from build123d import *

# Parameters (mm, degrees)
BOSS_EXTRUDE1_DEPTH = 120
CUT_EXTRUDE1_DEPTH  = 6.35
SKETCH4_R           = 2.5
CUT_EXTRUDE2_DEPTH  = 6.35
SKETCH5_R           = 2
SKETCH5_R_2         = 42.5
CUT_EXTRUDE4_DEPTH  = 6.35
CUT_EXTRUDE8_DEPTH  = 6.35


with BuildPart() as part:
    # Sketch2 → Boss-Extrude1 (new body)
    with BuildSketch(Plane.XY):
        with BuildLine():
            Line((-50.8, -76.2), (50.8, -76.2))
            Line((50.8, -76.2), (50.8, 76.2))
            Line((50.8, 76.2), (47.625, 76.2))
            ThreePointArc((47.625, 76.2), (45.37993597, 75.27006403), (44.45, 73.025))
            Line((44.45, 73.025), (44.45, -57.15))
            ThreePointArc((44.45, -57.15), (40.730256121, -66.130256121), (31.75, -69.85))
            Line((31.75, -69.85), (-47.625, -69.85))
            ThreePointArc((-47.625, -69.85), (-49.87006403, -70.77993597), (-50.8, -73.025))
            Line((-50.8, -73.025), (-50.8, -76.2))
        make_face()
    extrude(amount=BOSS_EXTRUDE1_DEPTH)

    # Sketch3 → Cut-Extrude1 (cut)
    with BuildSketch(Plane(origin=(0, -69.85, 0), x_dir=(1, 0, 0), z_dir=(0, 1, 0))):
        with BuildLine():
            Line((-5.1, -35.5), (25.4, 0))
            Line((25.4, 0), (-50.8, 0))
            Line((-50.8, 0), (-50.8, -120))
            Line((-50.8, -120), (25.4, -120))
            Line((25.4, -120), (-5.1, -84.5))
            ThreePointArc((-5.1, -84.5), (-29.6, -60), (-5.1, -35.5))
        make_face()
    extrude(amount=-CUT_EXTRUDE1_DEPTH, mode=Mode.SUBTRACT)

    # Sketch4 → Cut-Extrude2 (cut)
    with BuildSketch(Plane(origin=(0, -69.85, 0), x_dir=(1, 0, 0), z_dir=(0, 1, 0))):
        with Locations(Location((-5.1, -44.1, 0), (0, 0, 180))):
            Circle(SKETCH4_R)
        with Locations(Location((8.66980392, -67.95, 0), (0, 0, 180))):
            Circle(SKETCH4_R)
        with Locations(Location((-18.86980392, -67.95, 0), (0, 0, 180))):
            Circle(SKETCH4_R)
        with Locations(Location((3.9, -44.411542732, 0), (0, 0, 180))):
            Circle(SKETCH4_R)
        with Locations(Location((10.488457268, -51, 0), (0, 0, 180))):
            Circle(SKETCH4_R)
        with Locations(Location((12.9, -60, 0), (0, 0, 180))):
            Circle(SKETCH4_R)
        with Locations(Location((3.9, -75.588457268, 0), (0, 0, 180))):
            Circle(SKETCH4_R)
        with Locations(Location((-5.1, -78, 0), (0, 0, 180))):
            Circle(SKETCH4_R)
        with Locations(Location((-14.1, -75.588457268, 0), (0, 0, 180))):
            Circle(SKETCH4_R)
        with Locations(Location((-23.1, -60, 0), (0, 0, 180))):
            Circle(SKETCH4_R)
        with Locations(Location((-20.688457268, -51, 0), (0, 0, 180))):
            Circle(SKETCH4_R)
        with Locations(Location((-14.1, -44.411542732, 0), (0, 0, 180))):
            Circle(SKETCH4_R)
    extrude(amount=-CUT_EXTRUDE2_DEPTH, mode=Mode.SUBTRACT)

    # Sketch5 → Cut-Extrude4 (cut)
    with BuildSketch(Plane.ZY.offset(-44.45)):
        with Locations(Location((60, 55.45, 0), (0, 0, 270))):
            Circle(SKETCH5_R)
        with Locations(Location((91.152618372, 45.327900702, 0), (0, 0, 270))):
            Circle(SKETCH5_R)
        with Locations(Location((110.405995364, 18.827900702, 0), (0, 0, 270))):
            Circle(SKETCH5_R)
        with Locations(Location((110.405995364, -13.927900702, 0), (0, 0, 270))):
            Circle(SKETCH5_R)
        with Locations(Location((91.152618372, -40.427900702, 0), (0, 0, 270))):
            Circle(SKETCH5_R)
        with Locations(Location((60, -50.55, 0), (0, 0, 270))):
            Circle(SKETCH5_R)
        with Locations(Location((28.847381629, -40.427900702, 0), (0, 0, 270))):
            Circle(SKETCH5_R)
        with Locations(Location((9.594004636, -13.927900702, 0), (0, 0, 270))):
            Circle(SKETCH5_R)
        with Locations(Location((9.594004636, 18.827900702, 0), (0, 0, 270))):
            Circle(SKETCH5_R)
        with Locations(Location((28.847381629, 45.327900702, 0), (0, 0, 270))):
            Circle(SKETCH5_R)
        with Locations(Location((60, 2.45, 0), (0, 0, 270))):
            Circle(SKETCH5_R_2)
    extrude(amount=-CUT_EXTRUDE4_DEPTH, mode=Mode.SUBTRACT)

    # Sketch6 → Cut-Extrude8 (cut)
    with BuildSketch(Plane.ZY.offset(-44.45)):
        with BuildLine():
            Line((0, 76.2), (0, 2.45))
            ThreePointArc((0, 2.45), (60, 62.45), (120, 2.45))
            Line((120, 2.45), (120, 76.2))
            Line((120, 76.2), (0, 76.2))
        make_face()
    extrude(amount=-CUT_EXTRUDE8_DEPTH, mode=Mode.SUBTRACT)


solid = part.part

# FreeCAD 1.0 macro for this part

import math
import FreeCAD as App
import Part
import Sketcher
Q = App.Units.Quantity

doc = App.newDocument("Part")
body = doc.addObject("PartDesign::Body", "Body")

# Sketch on XY plane
sketch1 = doc.addObject("Sketcher::SketchObject", "Sketch")
body.addObject(sketch1)
sketch1.AttachmentSupport = (doc.XY_Plane, [""])
sketch1.MapMode = "FlatFace"
sketch1.addGeometry(Part.LineSegment(App.Vector(-50.8, -76.2, 0), App.Vector(50.8, -76.2, 0)), False)
sketch1.addGeometry(Part.LineSegment(App.Vector(50.8, -76.2, 0), App.Vector(50.8, 76.2, 0)), False)
sketch1.addGeometry(Part.LineSegment(App.Vector(50.8, 76.2, 0), App.Vector(47.625, 76.2, 0)), False)
sketch1.addGeometry(Part.ArcOfCircle(Part.Circle(App.Vector(47.625, 73.025, 0), App.Vector(0, 0, 1), 3.175), math.radians(90), math.radians(180)), False)
sketch1.addGeometry(Part.LineSegment(App.Vector(44.45, 73.025, 0), App.Vector(44.45, -57.15, 0)), False)
sketch1.addGeometry(Part.ArcOfCircle(Part.Circle(App.Vector(31.75, -57.15, 0), App.Vector(0, 0, 1), 12.7), math.radians(-90), math.radians(0)), False)
sketch1.addGeometry(Part.LineSegment(App.Vector(31.75, -69.85, 0), App.Vector(-47.625, -69.85, 0)), False)
sketch1.addGeometry(Part.ArcOfCircle(Part.Circle(App.Vector(-47.625, -73.025, 0), App.Vector(0, 0, 1), 3.175), math.radians(90), math.radians(180)), False)
sketch1.addGeometry(Part.LineSegment(App.Vector(-50.8, -73.025, 0), App.Vector(-50.8, -76.2, 0)), False)
sketch1.addConstraint(Sketcher.Constraint("Coincident", 0, 2, 1, 1))
sketch1.addConstraint(Sketcher.Constraint("Coincident", 1, 2, 2, 1))
sketch1.addConstraint(Sketcher.Constraint("Tangent", 2, 2, 3, 1))
sketch1.addConstraint(Sketcher.Constraint("Tangent", 3, 2, 4, 1))
sketch1.addConstraint(Sketcher.Constraint("Tangent", 4, 2, 5, 2))
sketch1.addConstraint(Sketcher.Constraint("Tangent", 5, 1, 6, 1))
sketch1.addConstraint(Sketcher.Constraint("Tangent", 6, 2, 7, 1))
sketch1.addConstraint(Sketcher.Constraint("Tangent", 7, 2, 8, 1))
sketch1.addConstraint(Sketcher.Constraint("Coincident", 8, 2, 0, 1))
sketch1.addConstraint(Sketcher.Constraint("Horizontal", 0))
sketch1.addConstraint(Sketcher.Constraint("Vertical", 1))
sketch1.addConstraint(Sketcher.Constraint("Horizontal", 2))
sketch1.addConstraint(Sketcher.Constraint("Vertical", 4))
sketch1.addConstraint(Sketcher.Constraint("Horizontal", 6))
sketch1.addConstraint(Sketcher.Constraint("Vertical", 8))
sketch1.addConstraint(Sketcher.Constraint("Equal", 3, 7))
sketch1.addConstraint(Sketcher.Constraint("Symmetric", 3, 3, 7, 3, -1, 1))
sketch1.addConstraint(Sketcher.Constraint("Symmetric", 1, 2, 8, 2, -1, 1))
sketch1.addConstraint(Sketcher.Constraint("Radius", 5, Q("0.5 in")))
sketch1.addConstraint(Sketcher.Constraint("DistanceX", 0, 1, 0, 2, Q("4 in")))
sketch1.addConstraint(Sketcher.Constraint("DistanceY", 1, 1, 1, 2, Q("6 in")))
sketch1.addConstraint(Sketcher.Constraint("Radius", 3, Q("0.125 in")))
pad1 = doc.addObject("PartDesign::Pad", "Pad")
body.addObject(pad1)
pad1.Profile = sketch1
pad1.Length = 120

# Sketch on XZ plane
sketch2 = doc.addObject("Sketcher::SketchObject", "Sketch001")
body.addObject(sketch2)
sketch2.AttachmentSupport = (doc.XZ_Plane, [""])
sketch2.MapMode = "FlatFace"
sketch2.AttachmentOffset = App.Placement(App.Vector(0, 0, 2.75 * 25.4), App.Rotation())
sketch2.addGeometry(Part.LineSegment(App.Vector(-5.1, 35.5, 0), App.Vector(25.4, 0, 0)), False)
sketch2.addGeometry(Part.LineSegment(App.Vector(25.4, 0, 0), App.Vector(-50.8, 0, 0)), False)
sketch2.addGeometry(Part.LineSegment(App.Vector(-50.8, 0, 0), App.Vector(-50.8, 120, 0)), False)
sketch2.addGeometry(Part.LineSegment(App.Vector(-50.8, 120, 0), App.Vector(25.4, 120, 0)), False)
sketch2.addGeometry(Part.LineSegment(App.Vector(25.4, 120, 0), App.Vector(-5.1, 84.5, 0)), False)
sketch2.addGeometry(Part.ArcOfCircle(Part.Circle(App.Vector(-5.1, 60, 0), App.Vector(0, 0, 1), 24.5), math.radians(90), math.radians(270)), False)
sketch2.addConstraint(Sketcher.Constraint("Coincident", 0, 2, 1, 1))
sketch2.addConstraint(Sketcher.Constraint("Coincident", 1, 2, 2, 1))
sketch2.addConstraint(Sketcher.Constraint("Coincident", 2, 2, 3, 1))
sketch2.addConstraint(Sketcher.Constraint("Coincident", 3, 2, 4, 1))
sketch2.addConstraint(Sketcher.Constraint("Coincident", 4, 2, 5, 1))
sketch2.addConstraint(Sketcher.Constraint("Coincident", 5, 2, 0, 1))
sketch2.addConstraint(Sketcher.Constraint("Horizontal", 1))
sketch2.addConstraint(Sketcher.Constraint("Vertical", 2))
sketch2.addConstraint(Sketcher.Constraint("Horizontal", 3))
sketch2.addConstraint(Sketcher.Constraint("PointOnObject", 0, 2, -1))
sketch2.addConstraint(Sketcher.Constraint("Vertical", 0, 2, 3, 2))
sketch2.addConstraint(Sketcher.Constraint("Vertical", 5, 3, 4, 2))
sketch2.addConstraint(Sketcher.Constraint("Vertical", 4, 2, 5, 2))
sketch2.addConstraint(Sketcher.Constraint("Equal", 0, 4))
sketch2.addConstraint(Sketcher.Constraint("DistanceX", 1, 2, 1, 1, Q("3 in")))
sketch2.addConstraint(Sketcher.Constraint("DistanceX", -1, 1, 0, 2, Q("1 in")))
sketch2.addConstraint(Sketcher.Constraint("Radius", 5, 24.5))
sketch2.addConstraint(Sketcher.Constraint("DistanceY", 2, 1, 2, 2, 120.0))
sketch2.addConstraint(Sketcher.Constraint("DistanceX", 5, 3, -1, 1, 5.1))
pocket1 = doc.addObject("PartDesign::Pocket", "Pocket")
body.addObject(pocket1)
pocket1.Profile = sketch2
pocket1.Length = Q("0.25 in")
pocket1.Reversed = True

# Sketch on XZ plane
sketch3 = doc.addObject("Sketcher::SketchObject", "Sketch002")
body.addObject(sketch3)
sketch3.AttachmentSupport = (doc.XZ_Plane, [""])
sketch3.MapMode = "FlatFace"
sketch3.AttachmentOffset = App.Placement(App.Vector(0, 0, 2.75 * 25.4), App.Rotation())
sketch3.addGeometry(Part.Circle(App.Vector(-5.1, 44.1, 0), App.Vector(0, 0, 1), 2.5), False)
sketch3.addGeometry(Part.Circle(App.Vector(8.669804, 67.95, 0), App.Vector(0, 0, 1), 2.5), False)
sketch3.addGeometry(Part.Circle(App.Vector(-18.869804, 67.95, 0), App.Vector(0, 0, 1), 2.5), False)
sketch3.addGeometry(Part.Circle(App.Vector(3.9, 44.411543, 0), App.Vector(0, 0, 1), 2.5), False)
sketch3.addGeometry(Part.Circle(App.Vector(10.488457, 51, 0), App.Vector(0, 0, 1), 2.5), False)
sketch3.addGeometry(Part.Circle(App.Vector(12.9, 60, 0), App.Vector(0, 0, 1), 2.5), False)
sketch3.addGeometry(Part.Circle(App.Vector(3.9, 75.588457, 0), App.Vector(0, 0, 1), 2.5), False)
sketch3.addGeometry(Part.Circle(App.Vector(-5.1, 78, 0), App.Vector(0, 0, 1), 2.5), False)
sketch3.addGeometry(Part.Circle(App.Vector(-14.1, 75.588457, 0), App.Vector(0, 0, 1), 2.5), False)
sketch3.addGeometry(Part.Circle(App.Vector(-23.1, 60, 0), App.Vector(0, 0, 1), 2.5), False)
sketch3.addGeometry(Part.Circle(App.Vector(-20.688457, 51, 0), App.Vector(0, 0, 1), 2.5), False)
sketch3.addGeometry(Part.Circle(App.Vector(-14.1, 44.411543, 0), App.Vector(0, 0, 1), 2.5), False)
sketch3.addConstraint(Sketcher.Constraint("Equal", 0, 1))
sketch3.addConstraint(Sketcher.Constraint("Equal", 1, 2))
sketch3.addConstraint(Sketcher.Constraint("Equal", 2, 3))
sketch3.addConstraint(Sketcher.Constraint("Equal", 3, 4))
sketch3.addConstraint(Sketcher.Constraint("Equal", 4, 5))
sketch3.addConstraint(Sketcher.Constraint("Equal", 5, 6))
sketch3.addConstraint(Sketcher.Constraint("Equal", 6, 7))
sketch3.addConstraint(Sketcher.Constraint("Equal", 7, 8))
sketch3.addConstraint(Sketcher.Constraint("Equal", 8, 9))
sketch3.addConstraint(Sketcher.Constraint("Equal", 9, 10))
sketch3.addConstraint(Sketcher.Constraint("Equal", 10, 11))
sketch3.addConstraint(Sketcher.Constraint("Horizontal", 1, 3, 2, 3))
sketch3.addConstraint(Sketcher.Constraint("Horizontal", 6, 3, 8, 3))
sketch3.addConstraint(Sketcher.Constraint("Horizontal", 5, 3, 9, 3))
sketch3.addConstraint(Sketcher.Constraint("Horizontal", 4, 3, 10, 3))
sketch3.addConstraint(Sketcher.Constraint("Horizontal", 3, 3, 11, 3))
sketch3.addConstraint(Sketcher.Constraint("Vertical", 3, 3, 6, 3))
sketch3.addConstraint(Sketcher.Constraint("Vertical", 0, 3, 7, 3))
sketch3.addConstraint(Sketcher.Constraint("Vertical", 8, 3, 11, 3))
sketch3.addConstraint(Sketcher.Constraint("Diameter", 0, 5.0))
sketch3.addConstraint(Sketcher.Constraint("DistanceX", 0, 3, -1, 1, 5.1))
sketch3.addConstraint(Sketcher.Constraint("DistanceY", -1, 1, 0, 3, 44.1))
sketch3.addConstraint(Sketcher.Constraint("DistanceY", -1, 1, 1, 3, 67.95))
sketch3.addConstraint(Sketcher.Constraint("DistanceX", -1, 1, 3, 3, 3.9))
sketch3.addConstraint(Sketcher.Constraint("DistanceY", -1, 1, 4, 3, 51.0))
sketch3.addConstraint(Sketcher.Constraint("DistanceX", -1, 1, 5, 3, 12.9))
sketch3.addConstraint(Sketcher.Constraint("DistanceY", -1, 1, 5, 3, 60.0))
sketch3.addConstraint(Sketcher.Constraint("DistanceY", -1, 1, 7, 3, 78.0))
sketch3.addConstraint(Sketcher.Constraint("DistanceX", 8, 3, -1, 1, 14.1))
sketch3.addConstraint(Sketcher.Constraint("DistanceX", 9, 3, -1, 1, 23.1))
sketch3.addConstraint(Sketcher.Constraint("DistanceX", 2, 3, 4, 3, 29.358261))
sketch3.addConstraint(Sketcher.Constraint("DistanceX", -1, 1, 1, 3, 8.669804))
sketch3.addConstraint(Sketcher.Constraint("DistanceX", 2, 3, -1, 1, 18.869804))
sketch3.addConstraint(Sketcher.Constraint("DistanceY", -1, 1, 3, 3, 44.411543))
sketch3.addConstraint(Sketcher.Constraint("DistanceY", -1, 1, 6, 3, 75.588457))
sketch3.addConstraint(Sketcher.Constraint("DistanceX", 10, 3, -1, 1, 20.688457))
pocket2 = doc.addObject("PartDesign::Pocket", "Pocket001")
body.addObject(pocket2)
pocket2.Profile = sketch3
pocket2.Length = Q("0.25 in")
pocket2.Reversed = True

# Sketch on YZ plane
sketch4 = doc.addObject("Sketcher::SketchObject", "Sketch003")
body.addObject(sketch4)
sketch4.AttachmentSupport = (doc.YZ_Plane, [""])
sketch4.MapMode = "FlatFace"
sketch4.AttachmentOffset = App.Placement(App.Vector(0, 0, 1.75 * 25.4), App.Rotation())
sketch4.addGeometry(Part.Circle(App.Vector(55.45, 60, 0), App.Vector(0, 0, 1), 2), False)
sketch4.addGeometry(Part.Circle(App.Vector(45.327901, 91.152618, 0), App.Vector(0, 0, 1), 2), False)
sketch4.addGeometry(Part.Circle(App.Vector(18.827901, 110.405995, 0), App.Vector(0, 0, 1), 2), False)
sketch4.addGeometry(Part.Circle(App.Vector(-13.927901, 110.405995, 0), App.Vector(0, 0, 1), 2), False)
sketch4.addGeometry(Part.Circle(App.Vector(-40.427901, 91.152618, 0), App.Vector(0, 0, 1), 2), False)
sketch4.addGeometry(Part.Circle(App.Vector(-50.55, 60, 0), App.Vector(0, 0, 1), 2), False)
sketch4.addGeometry(Part.Circle(App.Vector(-40.427901, 28.847382, 0), App.Vector(0, 0, 1), 2), False)
sketch4.addGeometry(Part.Circle(App.Vector(-13.927901, 9.594005, 0), App.Vector(0, 0, 1), 2), False)
sketch4.addGeometry(Part.Circle(App.Vector(18.827901, 9.594005, 0), App.Vector(0, 0, 1), 2), False)
sketch4.addGeometry(Part.Circle(App.Vector(45.327901, 28.847382, 0), App.Vector(0, 0, 1), 2), False)
sketch4.addGeometry(Part.Circle(App.Vector(2.45, 60, 0), App.Vector(0, 0, 1), 42.5), False)
sketch4.addConstraint(Sketcher.Constraint("Equal", 0, 1))
sketch4.addConstraint(Sketcher.Constraint("Equal", 1, 2))
sketch4.addConstraint(Sketcher.Constraint("Equal", 2, 3))
sketch4.addConstraint(Sketcher.Constraint("Equal", 3, 4))
sketch4.addConstraint(Sketcher.Constraint("Equal", 4, 5))
sketch4.addConstraint(Sketcher.Constraint("Equal", 5, 6))
sketch4.addConstraint(Sketcher.Constraint("Equal", 6, 7))
sketch4.addConstraint(Sketcher.Constraint("Equal", 7, 8))
sketch4.addConstraint(Sketcher.Constraint("Equal", 8, 9))
sketch4.addConstraint(Sketcher.Constraint("Horizontal", 2, 3, 3, 3))
sketch4.addConstraint(Sketcher.Constraint("Horizontal", 1, 3, 4, 3))
sketch4.addConstraint(Sketcher.Constraint("Horizontal", 0, 3, 5, 3))
sketch4.addConstraint(Sketcher.Constraint("Horizontal", 7, 3, 8, 3))
sketch4.addConstraint(Sketcher.Constraint("Horizontal", 6, 3, 9, 3))
sketch4.addConstraint(Sketcher.Constraint("Horizontal", 5, 3, 10, 3))
sketch4.addConstraint(Sketcher.Constraint("Vertical", 4, 3, 6, 3))
sketch4.addConstraint(Sketcher.Constraint("Vertical", 3, 3, 7, 3))
sketch4.addConstraint(Sketcher.Constraint("Vertical", 2, 3, 8, 3))
sketch4.addConstraint(Sketcher.Constraint("Vertical", 1, 3, 9, 3))
sketch4.addConstraint(Sketcher.Constraint("Diameter", 0, 4.0))
sketch4.addConstraint(Sketcher.Constraint("Diameter", 10, 85.0))
sketch4.addConstraint(Sketcher.Constraint("DistanceX", -1, 1, 0, 3, 55.45))
sketch4.addConstraint(Sketcher.Constraint("DistanceY", -1, 1, 0, 3, 60.0))
sketch4.addConstraint(Sketcher.Constraint("DistanceX", -1, 1, 1, 3, 45.327901))
sketch4.addConstraint(Sketcher.Constraint("DistanceX", -1, 1, 2, 3, 18.827901))
sketch4.addConstraint(Sketcher.Constraint("DistanceX", 3, 3, -1, 1, 13.927901))
sketch4.addConstraint(Sketcher.Constraint("DistanceX", 4, 3, -1, 1, 40.427901))
sketch4.addConstraint(Sketcher.Constraint("DistanceX", 5, 3, -1, 1, 50.55))
sketch4.addConstraint(Sketcher.Constraint("DistanceX", -1, 1, 10, 3, 2.45))
sketch4.addConstraint(Sketcher.Constraint("DistanceY", -1, 1, 1, 3, 91.152618))
sketch4.addConstraint(Sketcher.Constraint("DistanceY", -1, 1, 6, 3, 28.847382))
sketch4.addConstraint(Sketcher.Constraint("DistanceY", 7, 3, 3, 3, 100.811991))
sketch4.addConstraint(Sketcher.Constraint("DistanceY", -1, 1, 2, 3, 110.405995))
pocket3 = doc.addObject("PartDesign::Pocket", "Pocket002")
body.addObject(pocket3)
pocket3.Profile = sketch4
pocket3.Length = Q("0.25 in")
pocket3.Reversed = True

# Sketch on YZ plane
sketch5 = doc.addObject("Sketcher::SketchObject", "Sketch004")
body.addObject(sketch5)
sketch5.AttachmentSupport = (doc.YZ_Plane, [""])
sketch5.MapMode = "FlatFace"
sketch5.AttachmentOffset = App.Placement(App.Vector(0, 0, 1.75 * 25.4), App.Rotation())
sketch5.addGeometry(Part.LineSegment(App.Vector(76.2, 0, 0), App.Vector(2.45, 0, 0)), False)
sketch5.addGeometry(Part.ArcOfCircle(Part.Circle(App.Vector(2.45, 60, 0), App.Vector(0, 0, 1), 60), math.radians(-90), math.radians(90)), False)
sketch5.addGeometry(Part.LineSegment(App.Vector(2.45, 120, 0), App.Vector(76.2, 120, 0)), False)
sketch5.addGeometry(Part.LineSegment(App.Vector(76.2, 120, 0), App.Vector(76.2, 0, 0)), False)
sketch5.addConstraint(Sketcher.Constraint("Tangent", 0, 2, 1, 1))
sketch5.addConstraint(Sketcher.Constraint("Tangent", 1, 2, 2, 1))
sketch5.addConstraint(Sketcher.Constraint("Coincident", 2, 2, 3, 1))
sketch5.addConstraint(Sketcher.Constraint("Coincident", 3, 2, 0, 1))
sketch5.addConstraint(Sketcher.Constraint("Horizontal", 0))
sketch5.addConstraint(Sketcher.Constraint("Horizontal", 2))
sketch5.addConstraint(Sketcher.Constraint("Vertical", 3))
sketch5.addConstraint(Sketcher.Constraint("PointOnObject", 0, 2, -1))
sketch5.addConstraint(Sketcher.Constraint("DistanceX", -1, 1, 2, 2, Q("3 in")))
sketch5.addConstraint(Sketcher.Constraint("Radius", 1, 60.0))
sketch5.addConstraint(Sketcher.Constraint("DistanceX", 0, 2, 0, 1, 73.75))
pocket4 = doc.addObject("PartDesign::Pocket", "Pocket003")
body.addObject(pocket4)
pocket4.Profile = sketch5
pocket4.Length = Q("0.25 in")
pocket4.Reversed = True

doc.recompute()
